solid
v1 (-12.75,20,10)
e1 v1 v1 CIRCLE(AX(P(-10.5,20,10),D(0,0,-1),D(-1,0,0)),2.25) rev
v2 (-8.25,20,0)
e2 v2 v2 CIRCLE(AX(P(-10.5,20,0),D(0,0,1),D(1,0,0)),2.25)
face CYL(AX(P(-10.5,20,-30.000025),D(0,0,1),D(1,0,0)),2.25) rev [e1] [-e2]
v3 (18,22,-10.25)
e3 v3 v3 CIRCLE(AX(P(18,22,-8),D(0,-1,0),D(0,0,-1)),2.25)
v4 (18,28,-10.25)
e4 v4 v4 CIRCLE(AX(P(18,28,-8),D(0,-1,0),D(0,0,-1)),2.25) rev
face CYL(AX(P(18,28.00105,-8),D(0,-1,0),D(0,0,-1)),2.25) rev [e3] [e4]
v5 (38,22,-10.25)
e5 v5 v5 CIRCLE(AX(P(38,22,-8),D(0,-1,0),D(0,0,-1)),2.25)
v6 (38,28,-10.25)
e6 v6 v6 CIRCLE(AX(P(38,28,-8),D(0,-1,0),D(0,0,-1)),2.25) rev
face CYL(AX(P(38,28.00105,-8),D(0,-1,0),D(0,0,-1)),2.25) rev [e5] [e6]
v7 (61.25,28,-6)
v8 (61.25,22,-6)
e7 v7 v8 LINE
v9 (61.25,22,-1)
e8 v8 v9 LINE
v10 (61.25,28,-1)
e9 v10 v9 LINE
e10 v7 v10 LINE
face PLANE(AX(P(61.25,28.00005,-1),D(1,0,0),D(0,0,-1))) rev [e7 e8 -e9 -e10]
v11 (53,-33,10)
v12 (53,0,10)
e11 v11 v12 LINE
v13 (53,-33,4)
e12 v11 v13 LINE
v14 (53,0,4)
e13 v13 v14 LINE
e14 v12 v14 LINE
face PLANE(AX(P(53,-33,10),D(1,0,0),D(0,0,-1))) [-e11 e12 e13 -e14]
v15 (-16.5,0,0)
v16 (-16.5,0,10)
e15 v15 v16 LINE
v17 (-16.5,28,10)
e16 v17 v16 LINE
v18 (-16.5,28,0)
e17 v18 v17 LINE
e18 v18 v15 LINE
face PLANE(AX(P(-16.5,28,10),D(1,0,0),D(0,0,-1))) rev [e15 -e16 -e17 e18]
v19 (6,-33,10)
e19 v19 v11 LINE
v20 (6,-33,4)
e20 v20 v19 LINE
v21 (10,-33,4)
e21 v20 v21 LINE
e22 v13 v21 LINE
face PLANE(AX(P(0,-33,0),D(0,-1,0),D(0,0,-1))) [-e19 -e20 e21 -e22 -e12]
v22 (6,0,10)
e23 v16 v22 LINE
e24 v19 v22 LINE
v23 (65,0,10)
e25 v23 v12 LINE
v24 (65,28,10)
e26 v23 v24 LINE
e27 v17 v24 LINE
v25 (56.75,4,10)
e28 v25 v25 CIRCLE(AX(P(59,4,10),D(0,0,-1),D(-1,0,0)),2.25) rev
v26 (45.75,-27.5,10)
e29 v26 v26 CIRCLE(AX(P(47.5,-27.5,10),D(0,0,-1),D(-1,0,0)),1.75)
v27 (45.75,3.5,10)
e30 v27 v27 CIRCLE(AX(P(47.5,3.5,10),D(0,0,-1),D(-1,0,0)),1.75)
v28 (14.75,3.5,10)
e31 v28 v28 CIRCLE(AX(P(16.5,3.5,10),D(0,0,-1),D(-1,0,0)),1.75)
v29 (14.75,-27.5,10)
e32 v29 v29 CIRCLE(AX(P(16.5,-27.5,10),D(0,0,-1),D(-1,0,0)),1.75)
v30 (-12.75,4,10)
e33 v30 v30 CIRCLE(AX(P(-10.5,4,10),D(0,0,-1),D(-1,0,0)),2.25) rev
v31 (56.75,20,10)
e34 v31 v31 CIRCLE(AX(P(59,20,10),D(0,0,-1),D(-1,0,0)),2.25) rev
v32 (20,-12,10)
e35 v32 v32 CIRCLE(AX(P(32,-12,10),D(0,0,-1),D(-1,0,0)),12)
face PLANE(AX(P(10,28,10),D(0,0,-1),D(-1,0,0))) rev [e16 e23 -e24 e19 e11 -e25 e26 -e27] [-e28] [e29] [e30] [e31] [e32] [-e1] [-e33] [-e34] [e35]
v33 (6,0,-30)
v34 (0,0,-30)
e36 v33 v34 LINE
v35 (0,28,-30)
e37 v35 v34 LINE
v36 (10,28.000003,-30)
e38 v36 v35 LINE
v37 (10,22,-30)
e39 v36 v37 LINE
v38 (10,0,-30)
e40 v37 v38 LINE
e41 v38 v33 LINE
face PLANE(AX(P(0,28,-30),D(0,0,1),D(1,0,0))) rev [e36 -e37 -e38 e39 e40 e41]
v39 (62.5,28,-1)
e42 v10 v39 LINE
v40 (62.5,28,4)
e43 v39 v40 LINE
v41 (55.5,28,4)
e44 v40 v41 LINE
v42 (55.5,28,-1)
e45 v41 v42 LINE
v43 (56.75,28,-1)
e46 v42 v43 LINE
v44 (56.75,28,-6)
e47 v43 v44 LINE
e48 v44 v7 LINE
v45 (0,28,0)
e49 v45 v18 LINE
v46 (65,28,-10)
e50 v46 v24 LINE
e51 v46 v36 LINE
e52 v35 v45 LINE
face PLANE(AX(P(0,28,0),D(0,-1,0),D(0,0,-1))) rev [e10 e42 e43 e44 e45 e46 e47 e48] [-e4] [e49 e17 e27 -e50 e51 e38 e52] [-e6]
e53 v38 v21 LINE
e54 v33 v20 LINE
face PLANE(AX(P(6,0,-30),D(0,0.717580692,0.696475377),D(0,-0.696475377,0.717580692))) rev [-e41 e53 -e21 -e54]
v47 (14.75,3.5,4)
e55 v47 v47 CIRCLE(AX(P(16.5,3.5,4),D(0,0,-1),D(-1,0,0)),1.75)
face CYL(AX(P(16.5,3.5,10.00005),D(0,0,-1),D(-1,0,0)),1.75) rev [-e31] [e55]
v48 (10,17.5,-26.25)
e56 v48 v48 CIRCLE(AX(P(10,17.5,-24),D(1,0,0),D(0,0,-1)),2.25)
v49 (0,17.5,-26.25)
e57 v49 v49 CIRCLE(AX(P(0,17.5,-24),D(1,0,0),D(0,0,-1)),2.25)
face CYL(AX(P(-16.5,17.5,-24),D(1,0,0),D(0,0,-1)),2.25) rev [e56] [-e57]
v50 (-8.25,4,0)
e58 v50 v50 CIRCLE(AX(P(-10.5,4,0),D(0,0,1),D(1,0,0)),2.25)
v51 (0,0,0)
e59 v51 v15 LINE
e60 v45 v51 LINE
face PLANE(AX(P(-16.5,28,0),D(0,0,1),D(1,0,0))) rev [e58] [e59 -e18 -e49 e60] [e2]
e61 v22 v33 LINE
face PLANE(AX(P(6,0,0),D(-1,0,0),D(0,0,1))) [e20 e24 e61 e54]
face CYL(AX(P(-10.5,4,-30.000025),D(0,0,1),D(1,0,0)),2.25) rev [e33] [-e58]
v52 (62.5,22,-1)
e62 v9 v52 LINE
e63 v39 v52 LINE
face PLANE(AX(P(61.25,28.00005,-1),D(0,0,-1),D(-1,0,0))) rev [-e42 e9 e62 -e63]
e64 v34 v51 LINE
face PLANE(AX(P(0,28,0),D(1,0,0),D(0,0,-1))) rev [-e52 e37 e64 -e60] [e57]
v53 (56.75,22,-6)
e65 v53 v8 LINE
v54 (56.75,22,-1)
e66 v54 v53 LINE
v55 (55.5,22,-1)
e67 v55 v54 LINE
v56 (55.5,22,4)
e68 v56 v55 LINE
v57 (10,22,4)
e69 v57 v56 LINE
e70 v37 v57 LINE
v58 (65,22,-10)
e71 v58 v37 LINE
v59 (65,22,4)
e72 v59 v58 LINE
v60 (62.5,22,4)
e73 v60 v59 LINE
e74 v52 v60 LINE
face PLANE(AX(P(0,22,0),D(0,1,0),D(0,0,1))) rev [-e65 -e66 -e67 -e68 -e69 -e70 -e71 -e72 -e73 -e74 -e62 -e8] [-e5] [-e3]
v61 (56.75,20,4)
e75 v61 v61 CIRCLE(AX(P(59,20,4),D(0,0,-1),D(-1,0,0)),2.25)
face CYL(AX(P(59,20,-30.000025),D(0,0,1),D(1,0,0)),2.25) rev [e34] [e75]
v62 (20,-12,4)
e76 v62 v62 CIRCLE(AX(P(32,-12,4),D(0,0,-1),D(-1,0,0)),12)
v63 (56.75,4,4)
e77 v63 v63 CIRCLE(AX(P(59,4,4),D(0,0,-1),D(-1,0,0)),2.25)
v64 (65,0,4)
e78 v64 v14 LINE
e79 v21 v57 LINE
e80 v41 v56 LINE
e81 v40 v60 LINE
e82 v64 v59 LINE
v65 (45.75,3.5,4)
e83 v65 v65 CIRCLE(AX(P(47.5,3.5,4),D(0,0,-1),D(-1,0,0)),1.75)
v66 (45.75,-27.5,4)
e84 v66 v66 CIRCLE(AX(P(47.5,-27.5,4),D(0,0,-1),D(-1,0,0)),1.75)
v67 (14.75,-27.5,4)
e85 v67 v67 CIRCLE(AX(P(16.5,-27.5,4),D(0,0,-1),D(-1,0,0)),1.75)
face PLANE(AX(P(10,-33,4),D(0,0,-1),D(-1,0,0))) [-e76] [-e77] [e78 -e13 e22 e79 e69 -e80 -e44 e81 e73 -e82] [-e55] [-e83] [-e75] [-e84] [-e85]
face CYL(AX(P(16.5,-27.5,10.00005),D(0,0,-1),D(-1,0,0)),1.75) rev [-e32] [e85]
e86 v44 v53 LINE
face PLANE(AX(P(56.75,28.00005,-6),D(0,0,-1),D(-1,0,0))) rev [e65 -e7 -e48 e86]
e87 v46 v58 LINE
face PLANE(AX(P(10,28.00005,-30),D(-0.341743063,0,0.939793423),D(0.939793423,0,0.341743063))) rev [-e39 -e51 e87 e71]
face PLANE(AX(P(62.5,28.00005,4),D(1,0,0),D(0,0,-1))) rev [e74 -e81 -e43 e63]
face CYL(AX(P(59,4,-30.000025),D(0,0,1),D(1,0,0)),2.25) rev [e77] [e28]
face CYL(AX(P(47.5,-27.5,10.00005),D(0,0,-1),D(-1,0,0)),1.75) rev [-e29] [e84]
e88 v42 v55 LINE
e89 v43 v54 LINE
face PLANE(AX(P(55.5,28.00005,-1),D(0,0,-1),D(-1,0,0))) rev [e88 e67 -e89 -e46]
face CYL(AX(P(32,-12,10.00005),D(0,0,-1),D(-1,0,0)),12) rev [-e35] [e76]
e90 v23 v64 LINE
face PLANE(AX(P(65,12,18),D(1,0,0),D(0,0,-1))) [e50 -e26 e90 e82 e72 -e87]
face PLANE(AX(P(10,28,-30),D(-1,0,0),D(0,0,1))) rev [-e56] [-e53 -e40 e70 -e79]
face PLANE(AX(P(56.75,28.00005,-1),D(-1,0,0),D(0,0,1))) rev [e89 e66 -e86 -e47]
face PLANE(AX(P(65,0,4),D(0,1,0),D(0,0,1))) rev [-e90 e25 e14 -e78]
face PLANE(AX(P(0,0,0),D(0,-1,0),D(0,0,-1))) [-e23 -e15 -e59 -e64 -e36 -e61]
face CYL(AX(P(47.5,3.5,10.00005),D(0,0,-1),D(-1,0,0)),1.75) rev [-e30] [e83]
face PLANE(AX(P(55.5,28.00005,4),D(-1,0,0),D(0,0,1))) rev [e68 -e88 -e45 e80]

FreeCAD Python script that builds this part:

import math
import FreeCAD as App
import Part
import Sketcher
Q = App.Units.Quantity


def add_polygon(sketch, points):
    """Adds a closed chain of lines whose ends are joined by coincident constraints."""
    first, n = sketch.GeometryCount, len(points)
    for a, b in zip(points, points[1:] + points[:1]):
        sketch.addGeometry(Part.LineSegment(App.Vector(*a, 0), App.Vector(*b, 0)), False)
    for i in range(n):
        sketch.addConstraint(Sketcher.Constraint("Coincident", first + i, 2, first + (i + 1) % n, 1))

doc = App.newDocument("Part")
params = doc.addObject("Spreadsheet::Sheet", "Params")
for row, (alias, value) in enumerate([
    ("sketch1_width", "10 mm"),
    ("sketch1_height", "40 mm"),
    ("sketch1_width2", "16.5 mm"),
    ("pad1_length", "28 mm"),
    ("sketch2_width", "43 mm"),
    ("sketch2_height", "6 mm"),
    ("pad2_length", "61 mm"),
    ("sketch3_diameter", "24 mm"),
    ("sketch3_diameter2", "3.5 mm"),
    ("sketch4_radius", "4 mm"),
    ("sketch4_width", "28 mm"),
    ("sketch4_width2", "8 mm"),
    ("pad3_length", "12 mm"),
    ("sketch5_radius", "4 mm"),
    ("sketch5_width", "8 mm"),
    ("sketch5_width2", "28 mm"),
    ("sketch5_height", "14 mm"),
    ("pad4_length", "12 mm"),
    ("sketch6_diameter", "4.5 mm"),
    ("sketch7_width", "55 mm"),
    ("sketch7_height", "34 mm"),
    ("pad5_length", "6 mm"),
    ("sketch8_width", "7 mm"),
    ("sketch8_height", "5 mm"),
    ("sketch8_width2", "4.5 mm"),
    ("sketch9_width", "33 mm"),
    ("sketch9_height", "6 mm"),
    ("sketch9_height2", "40 mm"),
    ("pad6_length", "4 mm"),
    ("sketch10_diameter", "4.5 mm"),
    ("sketch11_diameter", "4.5 mm"),
    ("sketch12_diameter", "4.5 mm"),
    ("sketch13_width", "55 mm"),
    ("sketch13_height", "20 mm"),
    ("sketch14_width", "28 mm"),
    ("sketch14_height", "8 mm"),
], start=1):
    params.set(f"A{row}", alias)
    params.set(f"B{row}", "=" + value)
    params.setAlias(f"B{row}", alias)

body = doc.addObject("PartDesign::Body", "Body")

sketch1 = doc.addObject("Sketcher::SketchObject", "Sketch")
body.addObject(sketch1)
sketch1.AttachmentSupport = (doc.XZ_Plane, [""])
sketch1.MapMode = "FlatFace"
add_polygon(sketch1, [(0, 0), (-16, 0), (-16, 10), (10, 10), (10, -30), (0, -30)])
sketch1.addConstraint(Sketcher.Constraint("Horizontal", 0))
sketch1.addConstraint(Sketcher.Constraint("Vertical", 1))
sketch1.addConstraint(Sketcher.Constraint("Horizontal", 2))
sketch1.addConstraint(Sketcher.Constraint("Vertical", 3))
sketch1.addConstraint(Sketcher.Constraint("Horizontal", 4))
sketch1.addConstraint(Sketcher.Constraint("Vertical", 5))
sketch1.addConstraint(Sketcher.Constraint("Coincident", 5, 2, -1, 1))
sketch1.addConstraint(Sketcher.Constraint("Equal", 4, 1))
sketch1.addConstraint(Sketcher.Constraint("DistanceX", 4, 2, 4, 1, Q("10 mm")))
sketch1.addConstraint(Sketcher.Constraint("DistanceY", 3, 2, 3, 1, Q("40 mm")))
sketch1.addConstraint(Sketcher.Constraint("DistanceX", 0, 2, 0, 1, Q("16.5 mm")))
sketch1.setExpression("Constraints[14]", "Params.sketch1_width")
sketch1.setExpression("Constraints[15]", "Params.sketch1_height")
sketch1.setExpression("Constraints[16]", "Params.sketch1_width2")
pad1 = doc.addObject("PartDesign::Pad", "Pad")
body.addObject(pad1)
pad1.Profile = sketch1
pad1.setExpression("Length", "Params.pad1_length")
pad1.Reversed = True

sketch2 = doc.addObject("Sketcher::SketchObject", "Sketch001")
body.addObject(sketch2)
sketch2.AttachmentSupport = (doc.XZ_Plane, [""])
sketch2.MapMode = "FlatFace"
sketch2.AttachmentOffset = App.Placement(App.Vector(0, 0, -28), App.Rotation())
add_polygon(sketch2, [(10, 4), (10, 10), (53, 10), (53, 4)])
sketch2.addConstraint(Sketcher.Constraint("Vertical", 0))
sketch2.addConstraint(Sketcher.Constraint("Horizontal", 1))
sketch2.addConstraint(Sketcher.Constraint("Vertical", 2))
sketch2.addConstraint(Sketcher.Constraint("Horizontal", 3))
sketch2.addConstraint(Sketcher.Constraint("DistanceX", 1, 1, 1, 2, Q("43 mm")))
sketch2.addConstraint(Sketcher.Constraint("DistanceY", 0, 1, 0, 2, Q("6 mm")))
sketch2.addConstraint(Sketcher.Constraint("DistanceX", -1, 1, 0, 2, Q("10 mm")))
sketch2.addConstraint(Sketcher.Constraint("DistanceY", -1, 1, 0, 2, Q("10 mm")))
sketch2.setExpression("Constraints[8]", "Params.sketch2_width")
sketch2.setExpression("Constraints[9]", "Params.sketch2_height")
pad2 = doc.addObject("PartDesign::Pad", "Pad001")
body.addObject(pad2)
pad2.Profile = sketch2
pad2.setExpression("Length", "Params.pad2_length")

sketch3 = doc.addObject("Sketcher::SketchObject", "Sketch002")
body.addObject(sketch3)
sketch3.AttachmentSupport = (doc.XY_Plane, [""])
sketch3.MapMode = "FlatFace"
sketch3.AttachmentOffset = App.Placement(App.Vector(0, 0, 4), App.Rotation())
sketch3.addGeometry(Part.Circle(App.Vector(32, -12, 0), App.Vector(0, 0, 1), 12), False)
sketch3.addGeometry(Part.Circle(App.Vector(16.5, 3.5, 0), App.Vector(0, 0, 1), 1.8), False)
sketch3.addGeometry(Part.Circle(App.Vector(16.5, -27.5, 0), App.Vector(0, 0, 1), 1.8), False)
sketch3.addGeometry(Part.Circle(App.Vector(47.5, -27.5, 0), App.Vector(0, 0, 1), 1.8), False)
sketch3.addGeometry(Part.Circle(App.Vector(47.5, 3.5, 0), App.Vector(0, 0, 1), 1.8), False)
sketch3.addConstraint(Sketcher.Constraint("Equal", 1, 2))
sketch3.addConstraint(Sketcher.Constraint("Equal", 2, 3))
sketch3.addConstraint(Sketcher.Constraint("Equal", 3, 4))
sketch3.addConstraint(Sketcher.Constraint("Horizontal", 2, 3, 3, 3))
sketch3.addConstraint(Sketcher.Constraint("Horizontal", 1, 3, 4, 3))
sketch3.addConstraint(Sketcher.Constraint("Vertical", 1, 3, 2, 3))
sketch3.addConstraint(Sketcher.Constraint("Vertical", 3, 3, 4, 3))
sketch3.addConstraint(Sketcher.Constraint("Diameter", 0, Q("24 mm")))
sketch3.addConstraint(Sketcher.Constraint("Diameter", 1, Q("3.5 mm")))
sketch3.addConstraint(Sketcher.Constraint("DistanceX", -1, 1, 0, 3, Q("32 mm")))
sketch3.addConstraint(Sketcher.Constraint("DistanceY", 0, 3, -1, 1, Q("12 mm")))
sketch3.addConstraint(Sketcher.Constraint("DistanceY", 2, 3, 1, 3, Q("31 mm")))
sketch3.addConstraint(Sketcher.Constraint("DistanceX", 2, 3, 3, 3, Q("31 mm")))
sketch3.addConstraint(Sketcher.Constraint("DistanceX", -1, 1, 1, 3, Q("16.5 mm")))
sketch3.addConstraint(Sketcher.Constraint("DistanceY", -1, 1, 1, 3, Q("3.5 mm")))
sketch3.setExpression("Constraints[7]", "Params.sketch3_diameter")
sketch3.setExpression("Constraints[8]", "Params.sketch3_diameter2")
pocket1 = doc.addObject("PartDesign::Pocket", "Pocket")
body.addObject(pocket1)
pocket1.Profile = sketch3
pocket1.Type = "ThroughAll"
pocket1.Reversed = True

sketch4 = doc.addObject("Sketcher::SketchObject", "Sketch003")
body.addObject(sketch4)
sketch4.AttachmentSupport = (doc.YZ_Plane, [""])
sketch4.MapMode = "FlatFace"
sketch4.AttachmentOffset = App.Placement(App.Vector(0, 0, -16.5), App.Rotation())
sketch4.addGeometry(Part.LineSegment(App.Vector(28, 10, 0), App.Vector(0, 10, 0)), False)
sketch4.addGeometry(Part.LineSegment(App.Vector(0, 10, 0), App.Vector(0, 18, 0)), False)
sketch4.addGeometry(Part.LineSegment(App.Vector(0, 18, 0), App.Vector(8, 18, 0)), False)
sketch4.addGeometry(Part.ArcOfCircle(Part.Circle(App.Vector(12, 18, 0), App.Vector(0, 0, 1), 4), math.radians(180), math.radians(360)), False)
sketch4.addGeometry(Part.LineSegment(App.Vector(16, 18, 0), App.Vector(28, 18, 0)), False)
sketch4.addGeometry(Part.LineSegment(App.Vector(28, 18, 0), App.Vector(28, 10, 0)), False)
sketch4.addConstraint(Sketcher.Constraint("Coincident", 0, 2, 1, 1))
sketch4.addConstraint(Sketcher.Constraint("Coincident", 1, 2, 2, 1))
sketch4.addConstraint(Sketcher.Constraint("Coincident", 2, 2, 3, 1))
sketch4.addConstraint(Sketcher.Constraint("Coincident", 3, 2, 4, 1))
sketch4.addConstraint(Sketcher.Constraint("Coincident", 4, 2, 5, 1))
sketch4.addConstraint(Sketcher.Constraint("Coincident", 5, 2, 0, 1))
sketch4.addConstraint(Sketcher.Constraint("Horizontal", 0))
sketch4.addConstraint(Sketcher.Constraint("Vertical", 1))
sketch4.addConstraint(Sketcher.Constraint("Horizontal", 2))
sketch4.addConstraint(Sketcher.Constraint("Horizontal", 4))
sketch4.addConstraint(Sketcher.Constraint("Vertical", 5))
sketch4.addConstraint(Sketcher.Constraint("PointOnObject", 0, 2, -2))
sketch4.addConstraint(Sketcher.Constraint("Horizontal", 3, 3, 1, 2))
sketch4.addConstraint(Sketcher.Constraint("Horizontal", 2, 2, 3, 2))
sketch4.addConstraint(Sketcher.Constraint("Equal", 2, 1))
sketch4.addConstraint(Sketcher.Constraint("Radius", 3, Q("4 mm")))
sketch4.addConstraint(Sketcher.Constraint("DistanceX", 0, 2, 0, 1, Q("28 mm")))
sketch4.addConstraint(Sketcher.Constraint("DistanceX", 2, 1, 2, 2, Q("8 mm")))
sketch4.addConstraint(Sketcher.Constraint("DistanceY", -1, 1, 3, 3, Q("18 mm")))
sketch4.setExpression("Constraints[15]", "Params.sketch4_radius")
sketch4.setExpression("Constraints[16]", "Params.sketch4_width")
sketch4.setExpression("Constraints[17]", "Params.sketch4_width2")
pad3 = doc.addObject("PartDesign::Pad", "Pad002")
body.addObject(pad3)
pad3.Profile = sketch4
pad3.setExpression("Length", "Params.pad3_length")

sketch5 = doc.addObject("Sketcher::SketchObject", "Sketch004")
body.addObject(sketch5)
sketch5.AttachmentSupport = (doc.YZ_Plane, [""])
sketch5.MapMode = "FlatFace"
sketch5.AttachmentOffset = App.Placement(App.Vector(0, 0, 53), App.Rotation())
sketch5.addGeometry(Part.LineSegment(App.Vector(8, 18, 0), App.Vector(0, 18, 0)), False)
sketch5.addGeometry(Part.LineSegment(App.Vector(0, 18, 0), App.Vector(0, 4, 0)), False)
sketch5.addGeometry(Part.LineSegment(App.Vector(0, 4, 0), App.Vector(28, 4, 0)), False)
sketch5.addGeometry(Part.LineSegment(App.Vector(28, 4, 0), App.Vector(28, 18, 0)), False)
sketch5.addGeometry(Part.LineSegment(App.Vector(28, 18, 0), App.Vector(16, 18, 0)), False)
sketch5.addGeometry(Part.ArcOfCircle(Part.Circle(App.Vector(12, 18, 0), App.Vector(0, 0, 1), 4), math.radians(180), math.radians(360)), False)
sketch5.addConstraint(Sketcher.Constraint("Coincident", 0, 2, 1, 1))
sketch5.addConstraint(Sketcher.Constraint("Coincident", 1, 2, 2, 1))
sketch5.addConstraint(Sketcher.Constraint("Coincident", 2, 2, 3, 1))
sketch5.addConstraint(Sketcher.Constraint("Coincident", 3, 2, 4, 1))
sketch5.addConstraint(Sketcher.Constraint("Coincident", 4, 2, 5, 2))
sketch5.addConstraint(Sketcher.Constraint("Coincident", 5, 1, 0, 1))
sketch5.addConstraint(Sketcher.Constraint("Horizontal", 0))
sketch5.addConstraint(Sketcher.Constraint("Vertical", 1))
sketch5.addConstraint(Sketcher.Constraint("Horizontal", 2))
sketch5.addConstraint(Sketcher.Constraint("Vertical", 3))
sketch5.addConstraint(Sketcher.Constraint("Horizontal", 4))
sketch5.addConstraint(Sketcher.Constraint("PointOnObject", 0, 2, -2))
sketch5.addConstraint(Sketcher.Constraint("Horizontal", 5, 3, 0, 2))
sketch5.addConstraint(Sketcher.Constraint("Horizontal", 0, 2, 3, 2))
sketch5.addConstraint(Sketcher.Constraint("Radius", 5, Q("4 mm")))
sketch5.addConstraint(Sketcher.Constraint("DistanceX", 0, 2, 0, 1, Q("8 mm")))
sketch5.addConstraint(Sketcher.Constraint("DistanceX", 2, 1, 2, 2, Q("28 mm")))
sketch5.addConstraint(Sketcher.Constraint("DistanceY", 1, 2, 1, 1, Q("14 mm")))
sketch5.addConstraint(Sketcher.Constraint("DistanceY", -1, 1, 5, 3, Q("18 mm")))
sketch5.setExpression("Constraints[14]", "Params.sketch5_radius")
sketch5.setExpression("Constraints[15]", "Params.sketch5_width")
sketch5.setExpression("Constraints[16]", "Params.sketch5_width2")
sketch5.setExpression("Constraints[17]", "Params.sketch5_height")
pad4 = doc.addObject("PartDesign::Pad", "Pad003")
body.addObject(pad4)
pad4.Profile = sketch5
pad4.setExpression("Length", "Params.pad4_length")

sketch6 = doc.addObject("Sketcher::SketchObject", "Sketch005")
body.addObject(sketch6)
sketch6.AttachmentSupport = (doc.XY_Plane, [""])
sketch6.MapMode = "FlatFace"
sketch6.AttachmentOffset = App.Placement(App.Vector(0, 0, 18), App.Rotation())
sketch6.addGeometry(Part.Circle(App.Vector(-10.5, 20, 0), App.Vector(0, 0, 1), 2.2), False)
sketch6.addGeometry(Part.Circle(App.Vector(-10.5, 4, 0), App.Vector(0, 0, 1), 2.2), False)
sketch6.addGeometry(Part.Circle(App.Vector(59, 4, 0), App.Vector(0, 0, 1), 2.2), False)
sketch6.addGeometry(Part.Circle(App.Vector(59, 20, 0), App.Vector(0, 0, 1), 2.2), False)
sketch6.addConstraint(Sketcher.Constraint("Equal", 0, 1))
sketch6.addConstraint(Sketcher.Constraint("Equal", 1, 2))
sketch6.addConstraint(Sketcher.Constraint("Equal", 2, 3))
sketch6.addConstraint(Sketcher.Constraint("Horizontal", 1, 3, 2, 3))
sketch6.addConstraint(Sketcher.Constraint("Horizontal", 0, 3, 3, 3))
sketch6.addConstraint(Sketcher.Constraint("Vertical", 0, 3, 1, 3))
sketch6.addConstraint(Sketcher.Constraint("Vertical", 2, 3, 3, 3))
sketch6.addConstraint(Sketcher.Constraint("Diameter", 0, Q("4.5 mm")))
sketch6.addConstraint(Sketcher.Constraint("DistanceY", -1, 1, 0, 3, Q("20 mm")))
sketch6.addConstraint(Sketcher.Constraint("DistanceY", -1, 1, 1, 3, Q("4 mm")))
sketch6.addConstraint(Sketcher.Constraint("DistanceX", -1, 1, 2, 3, Q("59 mm")))
sketch6.addConstraint(Sketcher.Constraint("DistanceX", 0, 3, -1, 1, Q("10.5 mm")))
sketch6.setExpression("Constraints[7]", "Params.sketch6_diameter")
pocket2 = doc.addObject("PartDesign::Pocket", "Pocket001")
body.addObject(pocket2)
pocket2.Profile = sketch6
pocket2.Type = "ThroughAll"

sketch7 = doc.addObject("Sketcher::SketchObject", "Sketch006")
body.addObject(sketch7)
sketch7.AttachmentSupport = (doc.XZ_Plane, [""])
sketch7.MapMode = "FlatFace"
sketch7.AttachmentOffset = App.Placement(App.Vector(0, 0, -28), App.Rotation())
add_polygon(sketch7, [(10, -30), (10, 4), (65, 4), (65, -30)])
sketch7.addConstraint(Sketcher.Constraint("Vertical", 0))
sketch7.addConstraint(Sketcher.Constraint("Horizontal", 1))
sketch7.addConstraint(Sketcher.Constraint("Vertical", 2))
sketch7.addConstraint(Sketcher.Constraint("Horizontal", 3))
sketch7.addConstraint(Sketcher.Constraint("DistanceX", 1, 1, 1, 2, Q("55 mm")))
sketch7.addConstraint(Sketcher.Constraint("DistanceY", 0, 1, 0, 2, Q("34 mm")))
sketch7.addConstraint(Sketcher.Constraint("DistanceX", -1, 1, 0, 2, Q("10 mm")))
sketch7.addConstraint(Sketcher.Constraint("DistanceY", -1, 1, 0, 2, Q("4 mm")))
sketch7.setExpression("Constraints[8]", "Params.sketch7_width")
sketch7.setExpression("Constraints[9]", "Params.sketch7_height")
pad5 = doc.addObject("PartDesign::Pad", "Pad004")
body.addObject(pad5)
pad5.Profile = sketch7
pad5.setExpression("Length", "Params.pad5_length")

sketch8 = doc.addObject("Sketcher::SketchObject", "Sketch007")
body.addObject(sketch8)
sketch8.AttachmentSupport = (doc.XZ_Plane, [""])
sketch8.MapMode = "FlatFace"
sketch8.AttachmentOffset = App.Placement(App.Vector(0, 0, -22), App.Rotation())
add_polygon(sketch8, [(62.5, 4), (55.5, 4), (55.5, -1), (56.8, -1), (56.8, -6), (61.2, -6), (61.2, -1), (62.5, -1)])
sketch8.addConstraint(Sketcher.Constraint("Horizontal", 0))
sketch8.addConstraint(Sketcher.Constraint("Vertical", 1))
sketch8.addConstraint(Sketcher.Constraint("Horizontal", 2))
sketch8.addConstraint(Sketcher.Constraint("Vertical", 3))
sketch8.addConstraint(Sketcher.Constraint("Horizontal", 4))
sketch8.addConstraint(Sketcher.Constraint("Vertical", 5))
sketch8.addConstraint(Sketcher.Constraint("Horizontal", 6))
sketch8.addConstraint(Sketcher.Constraint("Vertical", 7))
sketch8.addConstraint(Sketcher.Constraint("Horizontal", 2, 2, 5, 2))
sketch8.addConstraint(Sketcher.Constraint("Equal", 2, 6))
sketch8.addConstraint(Sketcher.Constraint("Equal", 1, 3))
sketch8.addConstraint(Sketcher.Constraint("DistanceX", 0, 2, 0, 1, Q("7 mm")))
sketch8.addConstraint(Sketcher.Constraint("DistanceY", 1, 2, 1, 1, Q("5 mm")))
sketch8.addConstraint(Sketcher.Constraint("DistanceX", 4, 1, 4, 2, Q("4.5 mm")))
sketch8.addConstraint(Sketcher.Constraint("DistanceY", -1, 1, 0, 2, Q("4 mm")))
sketch8.addConstraint(Sketcher.Constraint("DistanceX", -1, 1, 0, 2, Q("55.5 mm")))
sketch8.setExpression("Constraints[19]", "Params.sketch8_width")
sketch8.setExpression("Constraints[20]", "Params.sketch8_height")
sketch8.setExpression("Constraints[21]", "Params.sketch8_width2")
pocket3 = doc.addObject("PartDesign::Pocket", "Pocket002")
body.addObject(pocket3)
pocket3.Profile = sketch8
pocket3.Type = "ThroughAll"

sketch9 = doc.addObject("Sketcher::SketchObject", "Sketch008")
body.addObject(sketch9)
sketch9.AttachmentSupport = (doc.YZ_Plane, [""])
sketch9.MapMode = "FlatFace"
sketch9.AttachmentOffset = App.Placement(App.Vector(0, 0, 10), App.Rotation())
add_polygon(sketch9, [(0, -30), (-33, 4), (-33, 10), (0, 10)])
sketch9.addConstraint(Sketcher.Constraint("Vertical", 1))
sketch9.addConstraint(Sketcher.Constraint("Horizontal", 2))
sketch9.addConstraint(Sketcher.Constraint("Vertical", 3))
sketch9.addConstraint(Sketcher.Constraint("PointOnObject", 2, 2, -2))
sketch9.addConstraint(Sketcher.Constraint("DistanceX", 2, 1, 2, 2, Q("33 mm")))
sketch9.addConstraint(Sketcher.Constraint("DistanceY", 1, 1, 1, 2, Q("6 mm")))
sketch9.addConstraint(Sketcher.Constraint("DistanceY", 3, 2, 3, 1, Q("40 mm")))
sketch9.addConstraint(Sketcher.Constraint("DistanceY", -1, 1, 0, 2, Q("4 mm")))
sketch9.setExpression("Constraints[8]", "Params.sketch9_width")
sketch9.setExpression("Constraints[9]", "Params.sketch9_height")
sketch9.setExpression("Constraints[10]", "Params.sketch9_height2")
pad6 = doc.addObject("PartDesign::Pad", "Pad005")
body.addObject(pad6)
pad6.Profile = sketch9
pad6.setExpression("Length", "Params.pad6_length")
pad6.Reversed = True

sketch10 = doc.addObject("Sketcher::SketchObject", "Sketch009")
body.addObject(sketch10)
sketch10.AttachmentSupport = (doc.YZ_Plane, [""])
sketch10.MapMode = "FlatFace"
sketch10.AttachmentOffset = App.Placement(App.Vector(0, 0, 10), App.Rotation())
sketch10.addGeometry(Part.Circle(App.Vector(17.5, -24, 0), App.Vector(0, 0, 1), 2.2), False)
sketch10.addConstraint(Sketcher.Constraint("Diameter", 0, Q("4.5 mm")))
sketch10.addConstraint(Sketcher.Constraint("DistanceY", 0, 3, -1, 1, Q("24 mm")))
sketch10.addConstraint(Sketcher.Constraint("DistanceX", -1, 1, 0, 3, Q("17.5 mm")))
sketch10.setExpression("Constraints[0]", "Params.sketch10_diameter")
pocket4 = doc.addObject("PartDesign::Pocket", "Pocket003")
body.addObject(pocket4)
pocket4.Profile = sketch10
pocket4.Type = "ThroughAll"

sketch11 = doc.addObject("Sketcher::SketchObject", "Sketch010")
body.addObject(sketch11)
sketch11.AttachmentSupport = (doc.XZ_Plane, [""])
sketch11.MapMode = "FlatFace"
sketch11.AttachmentOffset = App.Placement(App.Vector(0, 0, -22), App.Rotation())
sketch11.addGeometry(Part.Circle(App.Vector(18, -8, 0), App.Vector(0, 0, 1), 2.2), False)
sketch11.addConstraint(Sketcher.Constraint("Diameter", 0, Q("4.5 mm")))
sketch11.addConstraint(Sketcher.Constraint("DistanceX", -1, 1, 0, 3, Q("18 mm")))
sketch11.addConstraint(Sketcher.Constraint("DistanceY", 0, 3, -1, 1, Q("8 mm")))
sketch11.setExpression("Constraints[0]", "Params.sketch11_diameter")
pocket5 = doc.addObject("PartDesign::Pocket", "Pocket004")
body.addObject(pocket5)
pocket5.Profile = sketch11
pocket5.Type = "UpToFirst"

sketch12 = doc.addObject("Sketcher::SketchObject", "Sketch011")
body.addObject(sketch12)
sketch12.AttachmentSupport = (doc.XZ_Plane, [""])
sketch12.MapMode = "FlatFace"
sketch12.AttachmentOffset = App.Placement(App.Vector(0, 0, -22), App.Rotation())
sketch12.addGeometry(Part.Circle(App.Vector(38, -8, 0), App.Vector(0, 0, 1), 2.2), False)
sketch12.addConstraint(Sketcher.Constraint("Diameter", 0, Q("4.5 mm")))
sketch12.addConstraint(Sketcher.Constraint("DistanceX", -1, 1, 0, 3, Q("38 mm")))
sketch12.addConstraint(Sketcher.Constraint("DistanceY", 0, 3, -1, 1, Q("8 mm")))
sketch12.setExpression("Constraints[0]", "Params.sketch12_diameter")
pocket6 = doc.addObject("PartDesign::Pocket", "Pocket005")
body.addObject(pocket6)
pocket6.Profile = sketch12
pocket6.Type = "UpToFirst"

sketch13 = doc.addObject("Sketcher::SketchObject", "Sketch012")
body.addObject(sketch13)
sketch13.AttachmentSupport = (doc.XZ_Plane, [""])
sketch13.MapMode = "FlatFace"
sketch13.AttachmentOffset = App.Placement(App.Vector(0, 0, -22), App.Rotation())
add_polygon(sketch13, [(65, -10), (10, -30), (65, -30)])
sketch13.addConstraint(Sketcher.Constraint("Horizontal", 1))
sketch13.addConstraint(Sketcher.Constraint("Vertical", 2))
sketch13.addConstraint(Sketcher.Constraint("DistanceX", 1, 1, 1, 2, Q("55 mm")))
sketch13.addConstraint(Sketcher.Constraint("DistanceY", 2, 1, 2, 2, Q("20 mm")))
sketch13.addConstraint(Sketcher.Constraint("DistanceX", -1, 1, 0, 2, Q("10 mm")))
sketch13.addConstraint(Sketcher.Constraint("DistanceY", 0, 2, -1, 1, Q("30 mm")))
sketch13.setExpression("Constraints[5]", "Params.sketch13_width")
sketch13.setExpression("Constraints[6]", "Params.sketch13_height")
pocket7 = doc.addObject("PartDesign::Pocket", "Pocket006")
body.addObject(pocket7)
pocket7.Profile = sketch13
pocket7.Type = "ThroughAll"

sketch14 = doc.addObject("Sketcher::SketchObject", "Sketch013")
body.addObject(sketch14)
sketch14.AttachmentSupport = (doc.YZ_Plane, [""])
sketch14.MapMode = "FlatFace"
sketch14.AttachmentOffset = App.Placement(App.Vector(0, 0, -16.5), App.Rotation())
add_polygon(sketch14, [(28, 10), (0, 10), (0, 18), (28, 18)])
sketch14.addConstraint(Sketcher.Constraint("Horizontal", 0))
sketch14.addConstraint(Sketcher.Constraint("Vertical", 1))
sketch14.addConstraint(Sketcher.Constraint("Horizontal", 2))
sketch14.addConstraint(Sketcher.Constraint("Vertical", 3))
sketch14.addConstraint(Sketcher.Constraint("PointOnObject", 0, 2, -2))
sketch14.addConstraint(Sketcher.Constraint("DistanceX", 0, 2, 0, 1, Q("28 mm")))
sketch14.addConstraint(Sketcher.Constraint("DistanceY", 1, 1, 1, 2, Q("8 mm")))
sketch14.addConstraint(Sketcher.Constraint("DistanceY", -1, 1, 0, 2, Q("10 mm")))
sketch14.setExpression("Constraints[9]", "Params.sketch14_width")
sketch14.setExpression("Constraints[10]", "Params.sketch14_height")
pocket8 = doc.addObject("PartDesign::Pocket", "Pocket007")
body.addObject(pocket8)
pocket8.Profile = sketch14
pocket8.Type = "ThroughAll"
pocket8.Reversed = True

doc.recompute()
